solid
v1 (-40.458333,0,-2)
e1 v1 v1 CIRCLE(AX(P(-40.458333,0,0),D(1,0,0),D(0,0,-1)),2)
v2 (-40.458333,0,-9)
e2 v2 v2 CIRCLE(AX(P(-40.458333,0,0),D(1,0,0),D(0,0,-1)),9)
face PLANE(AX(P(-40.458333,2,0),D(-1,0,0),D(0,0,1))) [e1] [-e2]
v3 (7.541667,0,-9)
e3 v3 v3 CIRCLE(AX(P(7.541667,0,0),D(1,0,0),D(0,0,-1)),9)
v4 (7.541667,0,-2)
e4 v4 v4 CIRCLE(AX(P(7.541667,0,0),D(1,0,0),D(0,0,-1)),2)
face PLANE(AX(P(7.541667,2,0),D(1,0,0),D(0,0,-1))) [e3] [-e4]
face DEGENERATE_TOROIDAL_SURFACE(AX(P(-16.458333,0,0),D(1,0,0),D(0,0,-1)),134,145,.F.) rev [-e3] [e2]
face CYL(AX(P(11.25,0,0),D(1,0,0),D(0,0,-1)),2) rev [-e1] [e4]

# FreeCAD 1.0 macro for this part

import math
import FreeCAD as App
import Part
import Sketcher
from FreeCAD import Vector
Q = App.Units.Quantity

doc = App.newDocument("Part")
body = doc.addObject("PartDesign::Body", "Body")

# Sketch on XY plane
sketch1 = doc.addObject("Sketcher::SketchObject", "Sketch")
body.addObject(sketch1)
sketch1.AttachmentSupport = (doc.XY_Plane, [""])
sketch1.MapMode = "FlatFace"
sketch1.addGeometry([
    Part.LineSegment(Vector(-40, 2, 0), Vector(8, 2, 0)),
    Part.LineSegment(Vector(8, 2, 0), Vector(8, 9, 0)),
    Part.ArcOfCircle(Part.Circle(Vector(-16, -134, 0), Vector(0, 0, 1), 145), math.radians(80.47), math.radians(99.53)),
    Part.LineSegment(Vector(-40, 9, 0), Vector(-40, 2, 0)),
], False)
sketch1.addConstraint([
    Sketcher.Constraint("Coincident", 0, 2, 1, 1),
    Sketcher.Constraint("Coincident", 1, 2, 2, 1),
    Sketcher.Constraint("Coincident", 2, 2, 3, 1),
    Sketcher.Constraint("Coincident", 3, 2, 0, 1),
    Sketcher.Constraint("Horizontal", 0),
    Sketcher.Constraint("Vertical", 1),
    Sketcher.Constraint("Vertical", 3),
    Sketcher.Constraint("Horizontal", 1, 2, 2, 2),
    Sketcher.Constraint("Radius", 2, Q("145 mm")),
    Sketcher.Constraint("DistanceX", 0, 1, 0, 2, Q("48 mm")),
    Sketcher.Constraint("DistanceY", 1, 1, 1, 2, Q("7 mm")),
    Sketcher.Constraint("DistanceY", 2, 3, -1, 1, Q("134 mm")),
    Sketcher.Constraint("DistanceX", 2, 3, -1, 1, Q("16.458333 mm")),
])
revolution = doc.addObject("PartDesign::Revolution", "Revolution")
body.addObject(revolution)
revolution.Profile = sketch1
revolution.ReferenceAxis = (sketch1, ["H_Axis"])
revolution.Angle = 360

doc.recompute()
